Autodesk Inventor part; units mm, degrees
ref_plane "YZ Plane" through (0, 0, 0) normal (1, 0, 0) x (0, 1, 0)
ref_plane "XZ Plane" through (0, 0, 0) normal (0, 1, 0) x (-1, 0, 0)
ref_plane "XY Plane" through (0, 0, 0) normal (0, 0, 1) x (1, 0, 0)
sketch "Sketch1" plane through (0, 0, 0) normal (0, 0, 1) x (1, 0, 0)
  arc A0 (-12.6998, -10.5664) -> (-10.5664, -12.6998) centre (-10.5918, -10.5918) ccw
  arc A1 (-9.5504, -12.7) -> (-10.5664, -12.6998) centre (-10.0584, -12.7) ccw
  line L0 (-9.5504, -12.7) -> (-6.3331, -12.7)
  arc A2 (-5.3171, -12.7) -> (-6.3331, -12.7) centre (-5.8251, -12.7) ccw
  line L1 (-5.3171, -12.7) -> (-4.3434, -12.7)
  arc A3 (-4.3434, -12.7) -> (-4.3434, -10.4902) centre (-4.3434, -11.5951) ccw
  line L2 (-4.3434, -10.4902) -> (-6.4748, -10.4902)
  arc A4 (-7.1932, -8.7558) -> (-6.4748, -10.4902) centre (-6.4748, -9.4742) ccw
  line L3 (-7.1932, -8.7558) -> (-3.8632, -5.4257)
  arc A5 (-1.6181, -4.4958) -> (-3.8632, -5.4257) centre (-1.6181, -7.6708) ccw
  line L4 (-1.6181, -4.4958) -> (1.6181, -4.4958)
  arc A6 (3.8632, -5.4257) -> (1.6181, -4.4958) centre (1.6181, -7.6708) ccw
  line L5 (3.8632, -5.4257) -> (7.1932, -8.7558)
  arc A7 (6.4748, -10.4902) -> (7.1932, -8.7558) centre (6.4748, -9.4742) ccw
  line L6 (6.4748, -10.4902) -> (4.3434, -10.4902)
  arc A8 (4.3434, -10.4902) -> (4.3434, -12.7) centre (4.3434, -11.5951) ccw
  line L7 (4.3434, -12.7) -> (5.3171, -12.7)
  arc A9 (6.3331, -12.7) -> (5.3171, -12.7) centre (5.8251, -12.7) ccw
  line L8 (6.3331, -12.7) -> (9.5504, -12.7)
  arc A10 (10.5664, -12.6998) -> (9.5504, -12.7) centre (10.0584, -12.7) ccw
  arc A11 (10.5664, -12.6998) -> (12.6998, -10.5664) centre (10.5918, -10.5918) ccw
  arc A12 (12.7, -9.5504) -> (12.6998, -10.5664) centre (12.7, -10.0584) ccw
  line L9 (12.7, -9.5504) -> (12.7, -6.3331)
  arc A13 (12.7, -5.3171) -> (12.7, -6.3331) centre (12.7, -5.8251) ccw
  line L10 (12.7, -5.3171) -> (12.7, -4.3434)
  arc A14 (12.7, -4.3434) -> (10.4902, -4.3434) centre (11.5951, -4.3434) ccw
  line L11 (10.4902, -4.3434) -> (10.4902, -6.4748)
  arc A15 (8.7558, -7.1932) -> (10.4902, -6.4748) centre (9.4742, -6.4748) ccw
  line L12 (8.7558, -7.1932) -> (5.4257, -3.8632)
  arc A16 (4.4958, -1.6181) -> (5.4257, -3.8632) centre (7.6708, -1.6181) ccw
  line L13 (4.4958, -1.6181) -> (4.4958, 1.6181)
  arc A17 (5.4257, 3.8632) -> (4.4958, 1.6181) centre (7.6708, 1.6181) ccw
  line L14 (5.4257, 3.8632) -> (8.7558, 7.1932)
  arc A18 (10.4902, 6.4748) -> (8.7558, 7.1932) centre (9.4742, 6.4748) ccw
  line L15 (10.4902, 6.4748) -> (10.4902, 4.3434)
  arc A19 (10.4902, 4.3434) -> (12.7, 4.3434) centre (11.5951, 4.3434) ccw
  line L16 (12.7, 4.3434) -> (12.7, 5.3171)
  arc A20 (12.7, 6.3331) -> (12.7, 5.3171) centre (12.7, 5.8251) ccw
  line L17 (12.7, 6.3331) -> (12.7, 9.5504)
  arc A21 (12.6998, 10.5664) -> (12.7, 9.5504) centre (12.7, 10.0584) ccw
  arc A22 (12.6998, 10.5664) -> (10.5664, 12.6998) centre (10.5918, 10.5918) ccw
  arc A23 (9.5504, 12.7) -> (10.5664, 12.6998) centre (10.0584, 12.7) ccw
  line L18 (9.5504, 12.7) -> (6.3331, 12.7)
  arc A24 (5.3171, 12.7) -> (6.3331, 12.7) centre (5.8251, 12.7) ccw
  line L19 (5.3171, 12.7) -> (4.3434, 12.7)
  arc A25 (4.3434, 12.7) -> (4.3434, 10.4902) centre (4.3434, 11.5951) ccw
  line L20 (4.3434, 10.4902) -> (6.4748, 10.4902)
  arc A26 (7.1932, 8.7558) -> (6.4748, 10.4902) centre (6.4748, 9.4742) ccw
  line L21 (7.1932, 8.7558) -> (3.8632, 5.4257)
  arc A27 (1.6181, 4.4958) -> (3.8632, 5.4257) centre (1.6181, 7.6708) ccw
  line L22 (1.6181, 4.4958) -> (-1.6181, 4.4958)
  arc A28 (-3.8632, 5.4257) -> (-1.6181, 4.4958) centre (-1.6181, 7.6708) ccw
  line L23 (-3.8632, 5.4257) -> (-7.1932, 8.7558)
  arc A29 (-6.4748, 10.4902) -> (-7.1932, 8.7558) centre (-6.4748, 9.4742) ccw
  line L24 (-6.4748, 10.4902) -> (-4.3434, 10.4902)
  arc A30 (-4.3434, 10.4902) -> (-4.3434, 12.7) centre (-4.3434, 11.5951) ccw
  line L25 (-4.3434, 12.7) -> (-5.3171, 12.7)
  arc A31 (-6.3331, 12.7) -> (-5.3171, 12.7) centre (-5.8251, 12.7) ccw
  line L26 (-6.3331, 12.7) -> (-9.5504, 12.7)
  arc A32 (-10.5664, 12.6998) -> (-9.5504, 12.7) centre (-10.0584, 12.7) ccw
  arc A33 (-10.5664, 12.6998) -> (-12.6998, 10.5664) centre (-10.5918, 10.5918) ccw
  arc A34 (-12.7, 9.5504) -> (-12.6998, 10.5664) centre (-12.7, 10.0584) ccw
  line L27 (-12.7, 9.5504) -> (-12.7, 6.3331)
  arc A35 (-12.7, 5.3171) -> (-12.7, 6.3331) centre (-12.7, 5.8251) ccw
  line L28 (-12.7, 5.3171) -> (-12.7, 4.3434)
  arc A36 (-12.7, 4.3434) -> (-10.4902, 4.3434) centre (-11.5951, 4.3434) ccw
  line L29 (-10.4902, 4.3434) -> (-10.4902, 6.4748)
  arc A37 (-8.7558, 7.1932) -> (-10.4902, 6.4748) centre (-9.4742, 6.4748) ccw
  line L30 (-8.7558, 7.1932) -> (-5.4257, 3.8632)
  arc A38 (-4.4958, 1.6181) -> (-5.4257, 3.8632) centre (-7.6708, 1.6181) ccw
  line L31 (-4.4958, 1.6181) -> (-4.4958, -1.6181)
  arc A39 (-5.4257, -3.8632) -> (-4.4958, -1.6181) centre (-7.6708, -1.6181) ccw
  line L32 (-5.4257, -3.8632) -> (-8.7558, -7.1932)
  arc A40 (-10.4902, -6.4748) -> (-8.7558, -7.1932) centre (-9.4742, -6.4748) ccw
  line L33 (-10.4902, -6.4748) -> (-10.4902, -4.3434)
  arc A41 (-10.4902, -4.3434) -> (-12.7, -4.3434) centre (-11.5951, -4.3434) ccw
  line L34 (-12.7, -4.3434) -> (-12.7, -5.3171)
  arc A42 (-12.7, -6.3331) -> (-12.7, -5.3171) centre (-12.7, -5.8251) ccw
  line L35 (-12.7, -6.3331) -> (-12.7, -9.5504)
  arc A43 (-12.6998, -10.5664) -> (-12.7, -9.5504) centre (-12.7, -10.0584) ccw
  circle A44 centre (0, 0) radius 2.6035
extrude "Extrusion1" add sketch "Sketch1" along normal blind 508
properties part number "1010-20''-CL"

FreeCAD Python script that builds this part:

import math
import FreeCAD as App
import Part
import Sketcher

V = App.Vector
Q = App.Units.Quantity

doc = App.newDocument("Part")
body = doc.addObject("PartDesign::Body", "Body")

# Sketch on XY plane
sketch1 = body.newObject("Sketcher::SketchObject", "Sketch")
sketch1.AttachmentSupport = (doc.getObject("XY_Plane"), [""])
sketch1.MapMode = "FlatFace"
sketch1.addGeometry([
    Part.ArcOfCircle(Part.Circle(V(-12.7, -10.0584, 0), V(0, 0, 1), 0.508), math.radians(-89.977443), math.radians(90)),  # 0
    Part.ArcOfCircle(Part.Circle(V(-10.5918, -10.5918, 0), V(0, 0, 1), 2.108153), math.radians(179.309657), math.radians(270.690343)),  # 1
    Part.ArcOfCircle(Part.Circle(V(-10.0584, -12.7, 0), V(0, 0, 1), 0.508), math.radians(0), math.radians(179.977443)),  # 2
    Part.LineSegment(V(-9.5504, -12.7, 0), V(-6.3331, -12.7, 0)),  # 3
    Part.ArcOfCircle(Part.Circle(V(-5.8251, -12.7, 0), V(0, 0, 1), 0.508), math.radians(0), math.radians(180)),  # 4
    Part.LineSegment(V(-5.3171, -12.7, 0), V(-4.3434, -12.7, 0)),  # 5
    Part.ArcOfCircle(Part.Circle(V(-4.3434, -11.5951, 0), V(0, 0, 1), 1.1049), math.radians(-90), math.radians(90)),  # 6
    Part.LineSegment(V(-4.3434, -10.4902, 0), V(-6.4748, -10.4902, 0)),  # 7
    Part.ArcOfCircle(Part.Circle(V(-6.4748, -9.4742, 0), V(0, 0, 1), 1.015971), math.radians(135), math.radians(270)),  # 8
    Part.LineSegment(V(-7.1932, -8.7558, 0), V(-3.8632, -5.4257, 0)),  # 9
    Part.ArcOfCircle(Part.Circle(V(-1.6181, -7.6708, 0), V(0, 0, 1), 3.175), math.radians(90), math.radians(135)),  # 10
    Part.LineSegment(V(-1.6181, -4.4958, 0), V(1.6181, -4.4958, 0)),  # 11
    Part.ArcOfCircle(Part.Circle(V(1.6181, -7.6708, 0), V(0, 0, 1), 3.175051), math.radians(45), math.radians(90)),  # 12
    Part.LineSegment(V(3.8632, -5.4257, 0), V(7.1932, -8.7558, 0)),  # 13
    Part.ArcOfCircle(Part.Circle(V(6.4748, -9.4742, 0), V(0, 0, 1), 1.016), math.radians(-90), math.radians(45)),  # 14
    Part.LineSegment(V(6.4748, -10.4902, 0), V(4.3434, -10.4902, 0)),  # 15
    Part.ArcOfCircle(Part.Circle(V(4.3434, -11.5951, 0), V(0, 0, 1), 1.1049), math.radians(90), math.radians(270)),  # 16
    Part.LineSegment(V(4.3434, -12.7, 0), V(5.3171, -12.7, 0)),  # 17
    Part.ArcOfCircle(Part.Circle(V(5.8251, -12.7, 0), V(0, 0, 1), 0.508), math.radians(0), math.radians(180)),  # 18
    Part.LineSegment(V(6.3331, -12.7, 0), V(9.5504, -12.7, 0)),  # 19
    Part.ArcOfCircle(Part.Circle(V(10.0584, -12.7, 0), V(0, 0, 1), 0.508), math.radians(0.022557), math.radians(180)),  # 20
    Part.ArcOfCircle(Part.Circle(V(10.5918, -10.5918, 0), V(0, 0, 1), 2.108153), math.radians(-90.690343), math.radians(0.690343)),  # 21
    Part.ArcOfCircle(Part.Circle(V(12.7, -10.0584, 0), V(0, 0, 1), 0.508), math.radians(90), math.radians(269.977443)),  # 22
    Part.LineSegment(V(12.7, -9.5504, 0), V(12.7, -6.3331, 0)),  # 23
    Part.ArcOfCircle(Part.Circle(V(12.7, -5.8251, 0), V(0, 0, 1), 0.508), math.radians(90), math.radians(270)),  # 24
    Part.LineSegment(V(12.7, -5.3171, 0), V(12.7, -4.3434, 0)),  # 25
    Part.ArcOfCircle(Part.Circle(V(11.5951, -4.3434, 0), V(0, 0, 1), 1.1049), math.radians(0), math.radians(180)),  # 26
    Part.LineSegment(V(10.4902, -4.3434, 0), V(10.4902, -6.4748, 0)),  # 27
    Part.ArcOfCircle(Part.Circle(V(9.4742, -6.4748, 0), V(0, 0, 1), 1.015971), math.radians(-135), math.radians(0)),  # 28
    Part.LineSegment(V(8.7558, -7.1932, 0), V(5.4257, -3.8632, 0)),  # 29
    Part.ArcOfCircle(Part.Circle(V(7.6708, -1.6181, 0), V(0, 0, 1), 3.175), math.radians(180), math.radians(225)),  # 30
    Part.LineSegment(V(4.4958, -1.6181, 0), V(4.4958, 1.6181, 0)),  # 31
    Part.ArcOfCircle(Part.Circle(V(7.6708, 1.6181, 0), V(0, 0, 1), 3.175051), math.radians(135), math.radians(180)),  # 32
    Part.LineSegment(V(5.4257, 3.8632, 0), V(8.7558, 7.1932, 0)),  # 33
    Part.ArcOfCircle(Part.Circle(V(9.4742, 6.4748, 0), V(0, 0, 1), 1.016), math.radians(0), math.radians(135)),  # 34
    Part.LineSegment(V(10.4902, 6.4748, 0), V(10.4902, 4.3434, 0)),  # 35
    Part.ArcOfCircle(Part.Circle(V(11.5951, 4.3434, 0), V(0, 0, 1), 1.1049), math.radians(180), math.radians(360)),  # 36
    Part.LineSegment(V(12.7, 4.3434, 0), V(12.7, 5.3171, 0)),  # 37
    Part.ArcOfCircle(Part.Circle(V(12.7, 5.8251, 0), V(0, 0, 1), 0.508), math.radians(90), math.radians(270)),  # 38
    Part.LineSegment(V(12.7, 6.3331, 0), V(12.7, 9.5504, 0)),  # 39
    Part.ArcOfCircle(Part.Circle(V(12.7, 10.0584, 0), V(0, 0, 1), 0.508), math.radians(90.022557), math.radians(270)),  # 40
    Part.ArcOfCircle(Part.Circle(V(10.5918, 10.5918, 0), V(0, 0, 1), 2.108153), math.radians(-0.690343), math.radians(90.690343)),  # 41
    Part.ArcOfCircle(Part.Circle(V(10.0584, 12.7, 0), V(0, 0, 1), 0.508), math.radians(180), math.radians(359.977443)),  # 42
    Part.LineSegment(V(9.5504, 12.7, 0), V(6.3331, 12.7, 0)),  # 43
    Part.ArcOfCircle(Part.Circle(V(5.8251, 12.7, 0), V(0, 0, 1), 0.508), math.radians(180), math.radians(360)),  # 44
    Part.LineSegment(V(5.3171, 12.7, 0), V(4.3434, 12.7, 0)),  # 45
    Part.ArcOfCircle(Part.Circle(V(4.3434, 11.5951, 0), V(0, 0, 1), 1.1049), math.radians(90), math.radians(270)),  # 46
    Part.LineSegment(V(4.3434, 10.4902, 0), V(6.4748, 10.4902, 0)),  # 47
    Part.ArcOfCircle(Part.Circle(V(6.4748, 9.4742, 0), V(0, 0, 1), 1.015971), math.radians(-45), math.radians(90)),  # 48
    Part.LineSegment(V(7.1932, 8.7558, 0), V(3.8632, 5.4257, 0)),  # 49
    Part.ArcOfCircle(Part.Circle(V(1.6181, 7.6708, 0), V(0, 0, 1), 3.175), math.radians(-90), math.radians(-45)),  # 50
    Part.LineSegment(V(1.6181, 4.4958, 0), V(-1.6181, 4.4958, 0)),  # 51
    Part.ArcOfCircle(Part.Circle(V(-1.6181, 7.6708, 0), V(0, 0, 1), 3.175051), math.radians(-135), math.radians(-90)),  # 52
    Part.LineSegment(V(-3.8632, 5.4257, 0), V(-7.1932, 8.7558, 0)),  # 53
    Part.ArcOfCircle(Part.Circle(V(-6.4748, 9.4742, 0), V(0, 0, 1), 1.016), math.radians(90), math.radians(225)),  # 54
    Part.LineSegment(V(-6.4748, 10.4902, 0), V(-4.3434, 10.4902, 0)),  # 55
    Part.ArcOfCircle(Part.Circle(V(-4.3434, 11.5951, 0), V(0, 0, 1), 1.1049), math.radians(-90), math.radians(90)),  # 56
    Part.LineSegment(V(-4.3434, 12.7, 0), V(-5.3171, 12.7, 0)),  # 57
    Part.ArcOfCircle(Part.Circle(V(-5.8251, 12.7, 0), V(0, 0, 1), 0.508), math.radians(180), math.radians(360)),  # 58
    Part.LineSegment(V(-6.3331, 12.7, 0), V(-9.5504, 12.7, 0)),  # 59
    Part.ArcOfCircle(Part.Circle(V(-10.0584, 12.7, 0), V(0, 0, 1), 0.508), math.radians(-179.977443), math.radians(0)),  # 60
    Part.ArcOfCircle(Part.Circle(V(-10.5918, 10.5918, 0), V(0, 0, 1), 2.108153), math.radians(89.309657), math.radians(180.690343)),  # 61
    Part.ArcOfCircle(Part.Circle(V(-12.7, 10.0584, 0), V(0, 0, 1), 0.508), math.radians(-90), math.radians(89.977443)),  # 62
    Part.LineSegment(V(-12.7, 9.5504, 0), V(-12.7, 6.3331, 0)),  # 63
    Part.ArcOfCircle(Part.Circle(V(-12.7, 5.8251, 0), V(0, 0, 1), 0.508), math.radians(-90), math.radians(90)),  # 64
    Part.LineSegment(V(-12.7, 5.3171, 0), V(-12.7, 4.3434, 0)),  # 65
    Part.ArcOfCircle(Part.Circle(V(-11.5951, 4.3434, 0), V(0, 0, 1), 1.1049), math.radians(180), math.radians(360)),  # 66
    Part.LineSegment(V(-10.4902, 4.3434, 0), V(-10.4902, 6.4748, 0)),  # 67
    Part.ArcOfCircle(Part.Circle(V(-9.4742, 6.4748, 0), V(0, 0, 1), 1.015971), math.radians(45), math.radians(180)),  # 68
    Part.LineSegment(V(-8.7558, 7.1932, 0), V(-5.4257, 3.8632, 0)),  # 69
    Part.ArcOfCircle(Part.Circle(V(-7.6708, 1.6181, 0), V(0, 0, 1), 3.175), math.radians(0), math.radians(45)),  # 70
    Part.LineSegment(V(-4.4958, 1.6181, 0), V(-4.4958, -1.6181, 0)),  # 71
    Part.ArcOfCircle(Part.Circle(V(-7.6708, -1.6181, 0), V(0, 0, 1), 3.175051), math.radians(-45), math.radians(0)),  # 72
    Part.LineSegment(V(-5.4257, -3.8632, 0), V(-8.7558, -7.1932, 0)),  # 73
    Part.ArcOfCircle(Part.Circle(V(-9.4742, -6.4748, 0), V(0, 0, 1), 1.016), math.radians(180), math.radians(315)),  # 74
    Part.LineSegment(V(-10.4902, -6.4748, 0), V(-10.4902, -4.3434, 0)),  # 75
    Part.ArcOfCircle(Part.Circle(V(-11.5951, -4.3434, 0), V(0, 0, 1), 1.1049), math.radians(0), math.radians(180)),  # 76
    Part.LineSegment(V(-12.7, -4.3434, 0), V(-12.7, -5.3171, 0)),  # 77
    Part.ArcOfCircle(Part.Circle(V(-12.7, -5.8251, 0), V(0, 0, 1), 0.508), math.radians(-90), math.radians(90)),  # 78
    Part.LineSegment(V(-12.7, -6.3331, 0), V(-12.7, -9.5504, 0)),  # 79
    Part.Circle(V(0, 0, 0), V(0, 0, 1), 2.6035),  # 80
], False)
sketch1.addConstraint([
    Sketcher.Constraint("Coincident", 0, 1, 1, 1),
    Sketcher.Constraint("Coincident", 1, 2, 2, 2),
    Sketcher.Constraint("Coincident", 2, 1, 3, 1),
    Sketcher.Constraint("Coincident", 3, 2, 4, 2),
    Sketcher.Constraint("Coincident", 4, 1, 5, 1),
    Sketcher.Constraint("Tangent", 5, 2, 6, 1),
    Sketcher.Constraint("Tangent", 6, 2, 7, 1),
    Sketcher.Constraint("Tangent", 7, 2, 8, 2),
    Sketcher.Constraint("Tangent", 8, 1, 9, 1),
    Sketcher.Constraint("Tangent", 9, 2, 10, 2),
    Sketcher.Constraint("Tangent", 10, 1, 11, 1),
    Sketcher.Constraint("Tangent", 11, 2, 12, 2),
    Sketcher.Constraint("Tangent", 12, 1, 13, 1),
    Sketcher.Constraint("Tangent", 13, 2, 14, 2),
    Sketcher.Constraint("Tangent", 14, 1, 15, 1),
    Sketcher.Constraint("Tangent", 15, 2, 16, 1),
    Sketcher.Constraint("Tangent", 16, 2, 17, 1),
    Sketcher.Constraint("Coincident", 17, 2, 18, 2),
    Sketcher.Constraint("Coincident", 18, 1, 19, 1),
    Sketcher.Constraint("Coincident", 19, 2, 20, 2),
    Sketcher.Constraint("Coincident", 20, 1, 21, 1),
    Sketcher.Constraint("Coincident", 21, 2, 22, 2),
    Sketcher.Constraint("Coincident", 22, 1, 23, 1),
    Sketcher.Constraint("Coincident", 23, 2, 24, 2),
    Sketcher.Constraint("Coincident", 24, 1, 25, 1),
    Sketcher.Constraint("Tangent", 25, 2, 26, 1),
    Sketcher.Constraint("Tangent", 26, 2, 27, 1),
    Sketcher.Constraint("Tangent", 27, 2, 28, 2),
    Sketcher.Constraint("Tangent", 28, 1, 29, 1),
    Sketcher.Constraint("Tangent", 29, 2, 30, 2),
    Sketcher.Constraint("Tangent", 30, 1, 31, 1),
    Sketcher.Constraint("Tangent", 31, 2, 32, 2),
    Sketcher.Constraint("Tangent", 32, 1, 33, 1),
    Sketcher.Constraint("Tangent", 33, 2, 34, 2),
    Sketcher.Constraint("Tangent", 34, 1, 35, 1),
    Sketcher.Constraint("Tangent", 35, 2, 36, 1),
    Sketcher.Constraint("Tangent", 36, 2, 37, 1),
    Sketcher.Constraint("Coincident", 37, 2, 38, 2),
    Sketcher.Constraint("Coincident", 38, 1, 39, 1),
    Sketcher.Constraint("Coincident", 39, 2, 40, 2),
    Sketcher.Constraint("Coincident", 40, 1, 41, 1),
    Sketcher.Constraint("Coincident", 41, 2, 42, 2),
    Sketcher.Constraint("Coincident", 42, 1, 43, 1),
    Sketcher.Constraint("Coincident", 43, 2, 44, 2),
    Sketcher.Constraint("Coincident", 44, 1, 45, 1),
    Sketcher.Constraint("Tangent", 45, 2, 46, 1),
    Sketcher.Constraint("Tangent", 46, 2, 47, 1),
    Sketcher.Constraint("Tangent", 47, 2, 48, 2),
    Sketcher.Constraint("Tangent", 48, 1, 49, 1),
    Sketcher.Constraint("Tangent", 49, 2, 50, 2),
    Sketcher.Constraint("Tangent", 50, 1, 51, 1),
    Sketcher.Constraint("Tangent", 51, 2, 52, 2),
    Sketcher.Constraint("Tangent", 52, 1, 53, 1),
    Sketcher.Constraint("Tangent", 53, 2, 54, 2),
    Sketcher.Constraint("Tangent", 54, 1, 55, 1),
    Sketcher.Constraint("Tangent", 55, 2, 56, 1),
    Sketcher.Constraint("Tangent", 56, 2, 57, 1),
    Sketcher.Constraint("Coincident", 57, 2, 58, 2),
    Sketcher.Constraint("Coincident", 58, 1, 59, 1),
    Sketcher.Constraint("Coincident", 59, 2, 60, 2),
    Sketcher.Constraint("Coincident", 60, 1, 61, 1),
    Sketcher.Constraint("Coincident", 61, 2, 62, 2),
    Sketcher.Constraint("Coincident", 62, 1, 63, 1),
    Sketcher.Constraint("Coincident", 63, 2, 64, 2),
    Sketcher.Constraint("Coincident", 64, 1, 65, 1),
    Sketcher.Constraint("Tangent", 65, 2, 66, 1),
    Sketcher.Constraint("Tangent", 66, 2, 67, 1),
    Sketcher.Constraint("Tangent", 67, 2, 68, 2),
    Sketcher.Constraint("Tangent", 68, 1, 69, 1),
    Sketcher.Constraint("Tangent", 69, 2, 70, 2),
    Sketcher.Constraint("Tangent", 70, 1, 71, 1),
    Sketcher.Constraint("Tangent", 71, 2, 72, 2),
    Sketcher.Constraint("Tangent", 72, 1, 73, 1),
    Sketcher.Constraint("Tangent", 73, 2, 74, 2),
    Sketcher.Constraint("Tangent", 74, 1, 75, 1),
    Sketcher.Constraint("Tangent", 75, 2, 76, 1),
    Sketcher.Constraint("Tangent", 76, 2, 77, 1),
    Sketcher.Constraint("Coincident", 77, 2, 78, 2),
    Sketcher.Constraint("Coincident", 78, 1, 79, 1),
    Sketcher.Constraint("Coincident", 79, 2, 0, 2),
    Sketcher.Constraint("Horizontal", 3),
    Sketcher.Constraint("Horizontal", 5),
    Sketcher.Constraint("Horizontal", 7),
    Sketcher.Constraint("Horizontal", 11),
    Sketcher.Constraint("Horizontal", 15),
    Sketcher.Constraint("Horizontal", 17),
    Sketcher.Constraint("Horizontal", 19),
    Sketcher.Constraint("Vertical", 23),
    Sketcher.Constraint("Vertical", 25),
    Sketcher.Constraint("Vertical", 27),
    Sketcher.Constraint("Vertical", 31),
    Sketcher.Constraint("Vertical", 35),
    Sketcher.Constraint("Vertical", 37),
    Sketcher.Constraint("Vertical", 39),
    Sketcher.Constraint("Horizontal", 43),
    Sketcher.Constraint("Horizontal", 45),
    Sketcher.Constraint("Horizontal", 47),
    Sketcher.Constraint("Horizontal", 51),
    Sketcher.Constraint("Horizontal", 55),
    Sketcher.Constraint("Horizontal", 57),
    Sketcher.Constraint("Horizontal", 59),
    Sketcher.Constraint("Vertical", 63),
    Sketcher.Constraint("Vertical", 65),
    Sketcher.Constraint("Vertical", 67),
    Sketcher.Constraint("Vertical", 71),
    Sketcher.Constraint("Vertical", 75),
    Sketcher.Constraint("Vertical", 77),
    Sketcher.Constraint("Vertical", 79),
    Sketcher.Constraint("Coincident", 80, 3, -1, 1),
    Sketcher.Constraint("Equal", 0, 2),
    Sketcher.Constraint("Equal", 2, 4),
    Sketcher.Constraint("Equal", 10, 12),
    Sketcher.Constraint("Equal", 8, 14),
    Sketcher.Constraint("Equal", 6, 16),
    Sketcher.Constraint("Equal", 4, 18),
    Sketcher.Constraint("Equal", 18, 20),
    Sketcher.Constraint("Equal", 1, 21),
    Sketcher.Constraint("Equal", 20, 22),
    Sketcher.Constraint("Equal", 22, 24),
    Sketcher.Constraint("Equal", 16, 26),
    Sketcher.Constraint("Equal", 14, 28),
    Sketcher.Constraint("Equal", 12, 30),
    Sketcher.Constraint("Equal", 30, 32),
    Sketcher.Constraint("Equal", 28, 34),
    Sketcher.Constraint("Equal", 26, 36),
    Sketcher.Constraint("Equal", 24, 38),
    Sketcher.Constraint("Equal", 38, 40),
    Sketcher.Constraint("Equal", 21, 41),
    Sketcher.Constraint("Equal", 40, 42),
    Sketcher.Constraint("Equal", 42, 44),
    Sketcher.Constraint("Equal", 36, 46),
    Sketcher.Constraint("Equal", 34, 48),
    Sketcher.Constraint("Equal", 32, 50),
    Sketcher.Constraint("Equal", 50, 52),
    Sketcher.Constraint("Equal", 48, 54),
    Sketcher.Constraint("Equal", 46, 56),
    Sketcher.Constraint("Equal", 44, 58),
    Sketcher.Constraint("Equal", 58, 60),
    Sketcher.Constraint("Equal", 41, 61),
    Sketcher.Constraint("Equal", 60, 62),
    Sketcher.Constraint("Equal", 62, 64),
    Sketcher.Constraint("Equal", 56, 66),
    Sketcher.Constraint("Equal", 54, 68),
    Sketcher.Constraint("Equal", 52, 70),
    Sketcher.Constraint("Equal", 70, 72),
    Sketcher.Constraint("Equal", 68, 74),
    Sketcher.Constraint("Equal", 66, 76),
    Sketcher.Constraint("Equal", 64, 78),
    Sketcher.Constraint("Symmetric", 0, 3, 40, 3, -1, 1),
    Sketcher.Constraint("Symmetric", 1, 3, 41, 3, -1, 1),
    Sketcher.Constraint("Symmetric", 2, 3, 42, 3, -1, 1),
    Sketcher.Constraint("Symmetric", 4, 3, 44, 3, -1, 1),
    Sketcher.Constraint("Symmetric", 6, 3, 46, 3, -1, 1),
    Sketcher.Constraint("Symmetric", 10, 3, 50, 3, -1, 1),
    Sketcher.Constraint("Symmetric", 14, 3, 54, 3, -1, 1),
    Sketcher.Constraint("Symmetric", 18, 3, 58, 3, -1, 1),
    Sketcher.Constraint("Symmetric", 20, 3, 60, 3, -1, 1),
    Sketcher.Constraint("Symmetric", 21, 3, 61, 3, -1, 1),
    Sketcher.Constraint("Symmetric", 22, 3, 62, 3, -1, 1),
    Sketcher.Constraint("Symmetric", 24, 3, 64, 3, -1, 1),
    Sketcher.Constraint("Symmetric", 26, 3, 66, 3, -1, 1),
    Sketcher.Constraint("Symmetric", 30, 3, 70, 3, -1, 1),
    Sketcher.Constraint("Symmetric", 34, 3, 74, 3, -1, 1),
    Sketcher.Constraint("Symmetric", 38, 3, 78, 3, -1, 1),
    Sketcher.Constraint("Symmetric", 8, 3, 14, 3, -2),
    Sketcher.Constraint("Symmetric", 4, 3, 18, 3, -2),
    Sketcher.Constraint("Symmetric", 2, 3, 20, 3, -2),
    Sketcher.Constraint("Symmetric", 1, 3, 21, 3, -2),
    Sketcher.Constraint("Symmetric", 0, 3, 22, 3, -2),
    Sketcher.Constraint("Symmetric", 38, 3, 64, 3, -2),
    Sketcher.Constraint("Symmetric", 36, 3, 66, 3, -2),
    Sketcher.Constraint("Symmetric", 49, 2, 52, 1, -2),
    Sketcher.Constraint("Symmetric", 33, 2, 68, 1, -2),
    Sketcher.Constraint("Symmetric", 29, 2, 72, 1, -2),
    Sketcher.Constraint("Perpendicular", 9, 13),
    Sketcher.Constraint("Parallel", 13, 29),
    Sketcher.Constraint("Perpendicular", 29, 33),
    Sketcher.Constraint("Horizontal", 2, 3, 4, 3),
    Sketcher.Constraint("Horizontal", 26, 3, 76, 3),
    Sketcher.Constraint("Horizontal", 20, 3, 1, 2),
    Sketcher.Constraint("Horizontal", 1, 2, 2, 1),
    Sketcher.Constraint("Horizontal", 3, 2, 4, 1),
    Sketcher.Constraint("Horizontal", 17, 2, 18, 1),
    Sketcher.Constraint("Horizontal", 41, 2, 42, 1),
    Sketcher.Constraint("Horizontal", 57, 2, 58, 1),
    Sketcher.Constraint("Vertical", 22, 3, 24, 3),
    Sketcher.Constraint("Vertical", 16, 3, 46, 3),
    Sketcher.Constraint("Vertical", 6, 3, 56, 3),
    Sketcher.Constraint("Vertical", 78, 3, 0, 1),
    Sketcher.Constraint("Vertical", 21, 2, 22, 1),
    Sketcher.Constraint("Vertical", 23, 2, 24, 1),
    Sketcher.Constraint("Vertical", 37, 2, 38, 1),
    Sketcher.Constraint("Vertical", 61, 2, 62, 1),
    Sketcher.Constraint("Vertical", 77, 2, 78, 1),
    Sketcher.Constraint("Equal", 59, 23),
    Sketcher.Constraint("Equal", 57, 25),
    Sketcher.Constraint("Equal", 55, 27),
    Sketcher.Constraint("Equal", 51, 31),
    Sketcher.Constraint("Equal", 13, 29),
    Sketcher.Constraint("Radius", 0, Q("0.02 in")),
    Sketcher.Constraint("Radius", 8, Q("0.04 in")),
    Sketcher.Constraint("Diameter", 80, Q("0.205 in")),
    Sketcher.Constraint("Radius", 1, Q("0.083 in")),
    Sketcher.Constraint("Radius", 10, Q("0.125 in")),
    Sketcher.Constraint("DistanceX", 0, 3, -1, 1, Q("0.5 in")),
    Sketcher.Constraint("DistanceY", 2, 3, -1, 1, Q("0.5 in")),
    Sketcher.Constraint("Radius", 6, Q("0.0435 in")),
    Sketcher.Constraint("DistanceX", 11, 1, 11, 2, Q("0.1274 in")),
    Sketcher.Constraint("DistanceY", 0, 3, -1, 1, Q("0.396 in")),
    Sketcher.Constraint("DistanceX", 6, 3, -1, 1, Q("0.171 in")),
    Sketcher.Constraint("DistanceY", 10, 3, -1, 1, Q("0.302 in")),
    Sketcher.Constraint("DistanceX", 3, 1, 3, 2, Q("3.2173 mm")),
])
pad1 = body.newObject("PartDesign::Pad", "Pad")
pad1.Profile = sketch1
pad1.Length = Q("20 in")

doc.recompute()
